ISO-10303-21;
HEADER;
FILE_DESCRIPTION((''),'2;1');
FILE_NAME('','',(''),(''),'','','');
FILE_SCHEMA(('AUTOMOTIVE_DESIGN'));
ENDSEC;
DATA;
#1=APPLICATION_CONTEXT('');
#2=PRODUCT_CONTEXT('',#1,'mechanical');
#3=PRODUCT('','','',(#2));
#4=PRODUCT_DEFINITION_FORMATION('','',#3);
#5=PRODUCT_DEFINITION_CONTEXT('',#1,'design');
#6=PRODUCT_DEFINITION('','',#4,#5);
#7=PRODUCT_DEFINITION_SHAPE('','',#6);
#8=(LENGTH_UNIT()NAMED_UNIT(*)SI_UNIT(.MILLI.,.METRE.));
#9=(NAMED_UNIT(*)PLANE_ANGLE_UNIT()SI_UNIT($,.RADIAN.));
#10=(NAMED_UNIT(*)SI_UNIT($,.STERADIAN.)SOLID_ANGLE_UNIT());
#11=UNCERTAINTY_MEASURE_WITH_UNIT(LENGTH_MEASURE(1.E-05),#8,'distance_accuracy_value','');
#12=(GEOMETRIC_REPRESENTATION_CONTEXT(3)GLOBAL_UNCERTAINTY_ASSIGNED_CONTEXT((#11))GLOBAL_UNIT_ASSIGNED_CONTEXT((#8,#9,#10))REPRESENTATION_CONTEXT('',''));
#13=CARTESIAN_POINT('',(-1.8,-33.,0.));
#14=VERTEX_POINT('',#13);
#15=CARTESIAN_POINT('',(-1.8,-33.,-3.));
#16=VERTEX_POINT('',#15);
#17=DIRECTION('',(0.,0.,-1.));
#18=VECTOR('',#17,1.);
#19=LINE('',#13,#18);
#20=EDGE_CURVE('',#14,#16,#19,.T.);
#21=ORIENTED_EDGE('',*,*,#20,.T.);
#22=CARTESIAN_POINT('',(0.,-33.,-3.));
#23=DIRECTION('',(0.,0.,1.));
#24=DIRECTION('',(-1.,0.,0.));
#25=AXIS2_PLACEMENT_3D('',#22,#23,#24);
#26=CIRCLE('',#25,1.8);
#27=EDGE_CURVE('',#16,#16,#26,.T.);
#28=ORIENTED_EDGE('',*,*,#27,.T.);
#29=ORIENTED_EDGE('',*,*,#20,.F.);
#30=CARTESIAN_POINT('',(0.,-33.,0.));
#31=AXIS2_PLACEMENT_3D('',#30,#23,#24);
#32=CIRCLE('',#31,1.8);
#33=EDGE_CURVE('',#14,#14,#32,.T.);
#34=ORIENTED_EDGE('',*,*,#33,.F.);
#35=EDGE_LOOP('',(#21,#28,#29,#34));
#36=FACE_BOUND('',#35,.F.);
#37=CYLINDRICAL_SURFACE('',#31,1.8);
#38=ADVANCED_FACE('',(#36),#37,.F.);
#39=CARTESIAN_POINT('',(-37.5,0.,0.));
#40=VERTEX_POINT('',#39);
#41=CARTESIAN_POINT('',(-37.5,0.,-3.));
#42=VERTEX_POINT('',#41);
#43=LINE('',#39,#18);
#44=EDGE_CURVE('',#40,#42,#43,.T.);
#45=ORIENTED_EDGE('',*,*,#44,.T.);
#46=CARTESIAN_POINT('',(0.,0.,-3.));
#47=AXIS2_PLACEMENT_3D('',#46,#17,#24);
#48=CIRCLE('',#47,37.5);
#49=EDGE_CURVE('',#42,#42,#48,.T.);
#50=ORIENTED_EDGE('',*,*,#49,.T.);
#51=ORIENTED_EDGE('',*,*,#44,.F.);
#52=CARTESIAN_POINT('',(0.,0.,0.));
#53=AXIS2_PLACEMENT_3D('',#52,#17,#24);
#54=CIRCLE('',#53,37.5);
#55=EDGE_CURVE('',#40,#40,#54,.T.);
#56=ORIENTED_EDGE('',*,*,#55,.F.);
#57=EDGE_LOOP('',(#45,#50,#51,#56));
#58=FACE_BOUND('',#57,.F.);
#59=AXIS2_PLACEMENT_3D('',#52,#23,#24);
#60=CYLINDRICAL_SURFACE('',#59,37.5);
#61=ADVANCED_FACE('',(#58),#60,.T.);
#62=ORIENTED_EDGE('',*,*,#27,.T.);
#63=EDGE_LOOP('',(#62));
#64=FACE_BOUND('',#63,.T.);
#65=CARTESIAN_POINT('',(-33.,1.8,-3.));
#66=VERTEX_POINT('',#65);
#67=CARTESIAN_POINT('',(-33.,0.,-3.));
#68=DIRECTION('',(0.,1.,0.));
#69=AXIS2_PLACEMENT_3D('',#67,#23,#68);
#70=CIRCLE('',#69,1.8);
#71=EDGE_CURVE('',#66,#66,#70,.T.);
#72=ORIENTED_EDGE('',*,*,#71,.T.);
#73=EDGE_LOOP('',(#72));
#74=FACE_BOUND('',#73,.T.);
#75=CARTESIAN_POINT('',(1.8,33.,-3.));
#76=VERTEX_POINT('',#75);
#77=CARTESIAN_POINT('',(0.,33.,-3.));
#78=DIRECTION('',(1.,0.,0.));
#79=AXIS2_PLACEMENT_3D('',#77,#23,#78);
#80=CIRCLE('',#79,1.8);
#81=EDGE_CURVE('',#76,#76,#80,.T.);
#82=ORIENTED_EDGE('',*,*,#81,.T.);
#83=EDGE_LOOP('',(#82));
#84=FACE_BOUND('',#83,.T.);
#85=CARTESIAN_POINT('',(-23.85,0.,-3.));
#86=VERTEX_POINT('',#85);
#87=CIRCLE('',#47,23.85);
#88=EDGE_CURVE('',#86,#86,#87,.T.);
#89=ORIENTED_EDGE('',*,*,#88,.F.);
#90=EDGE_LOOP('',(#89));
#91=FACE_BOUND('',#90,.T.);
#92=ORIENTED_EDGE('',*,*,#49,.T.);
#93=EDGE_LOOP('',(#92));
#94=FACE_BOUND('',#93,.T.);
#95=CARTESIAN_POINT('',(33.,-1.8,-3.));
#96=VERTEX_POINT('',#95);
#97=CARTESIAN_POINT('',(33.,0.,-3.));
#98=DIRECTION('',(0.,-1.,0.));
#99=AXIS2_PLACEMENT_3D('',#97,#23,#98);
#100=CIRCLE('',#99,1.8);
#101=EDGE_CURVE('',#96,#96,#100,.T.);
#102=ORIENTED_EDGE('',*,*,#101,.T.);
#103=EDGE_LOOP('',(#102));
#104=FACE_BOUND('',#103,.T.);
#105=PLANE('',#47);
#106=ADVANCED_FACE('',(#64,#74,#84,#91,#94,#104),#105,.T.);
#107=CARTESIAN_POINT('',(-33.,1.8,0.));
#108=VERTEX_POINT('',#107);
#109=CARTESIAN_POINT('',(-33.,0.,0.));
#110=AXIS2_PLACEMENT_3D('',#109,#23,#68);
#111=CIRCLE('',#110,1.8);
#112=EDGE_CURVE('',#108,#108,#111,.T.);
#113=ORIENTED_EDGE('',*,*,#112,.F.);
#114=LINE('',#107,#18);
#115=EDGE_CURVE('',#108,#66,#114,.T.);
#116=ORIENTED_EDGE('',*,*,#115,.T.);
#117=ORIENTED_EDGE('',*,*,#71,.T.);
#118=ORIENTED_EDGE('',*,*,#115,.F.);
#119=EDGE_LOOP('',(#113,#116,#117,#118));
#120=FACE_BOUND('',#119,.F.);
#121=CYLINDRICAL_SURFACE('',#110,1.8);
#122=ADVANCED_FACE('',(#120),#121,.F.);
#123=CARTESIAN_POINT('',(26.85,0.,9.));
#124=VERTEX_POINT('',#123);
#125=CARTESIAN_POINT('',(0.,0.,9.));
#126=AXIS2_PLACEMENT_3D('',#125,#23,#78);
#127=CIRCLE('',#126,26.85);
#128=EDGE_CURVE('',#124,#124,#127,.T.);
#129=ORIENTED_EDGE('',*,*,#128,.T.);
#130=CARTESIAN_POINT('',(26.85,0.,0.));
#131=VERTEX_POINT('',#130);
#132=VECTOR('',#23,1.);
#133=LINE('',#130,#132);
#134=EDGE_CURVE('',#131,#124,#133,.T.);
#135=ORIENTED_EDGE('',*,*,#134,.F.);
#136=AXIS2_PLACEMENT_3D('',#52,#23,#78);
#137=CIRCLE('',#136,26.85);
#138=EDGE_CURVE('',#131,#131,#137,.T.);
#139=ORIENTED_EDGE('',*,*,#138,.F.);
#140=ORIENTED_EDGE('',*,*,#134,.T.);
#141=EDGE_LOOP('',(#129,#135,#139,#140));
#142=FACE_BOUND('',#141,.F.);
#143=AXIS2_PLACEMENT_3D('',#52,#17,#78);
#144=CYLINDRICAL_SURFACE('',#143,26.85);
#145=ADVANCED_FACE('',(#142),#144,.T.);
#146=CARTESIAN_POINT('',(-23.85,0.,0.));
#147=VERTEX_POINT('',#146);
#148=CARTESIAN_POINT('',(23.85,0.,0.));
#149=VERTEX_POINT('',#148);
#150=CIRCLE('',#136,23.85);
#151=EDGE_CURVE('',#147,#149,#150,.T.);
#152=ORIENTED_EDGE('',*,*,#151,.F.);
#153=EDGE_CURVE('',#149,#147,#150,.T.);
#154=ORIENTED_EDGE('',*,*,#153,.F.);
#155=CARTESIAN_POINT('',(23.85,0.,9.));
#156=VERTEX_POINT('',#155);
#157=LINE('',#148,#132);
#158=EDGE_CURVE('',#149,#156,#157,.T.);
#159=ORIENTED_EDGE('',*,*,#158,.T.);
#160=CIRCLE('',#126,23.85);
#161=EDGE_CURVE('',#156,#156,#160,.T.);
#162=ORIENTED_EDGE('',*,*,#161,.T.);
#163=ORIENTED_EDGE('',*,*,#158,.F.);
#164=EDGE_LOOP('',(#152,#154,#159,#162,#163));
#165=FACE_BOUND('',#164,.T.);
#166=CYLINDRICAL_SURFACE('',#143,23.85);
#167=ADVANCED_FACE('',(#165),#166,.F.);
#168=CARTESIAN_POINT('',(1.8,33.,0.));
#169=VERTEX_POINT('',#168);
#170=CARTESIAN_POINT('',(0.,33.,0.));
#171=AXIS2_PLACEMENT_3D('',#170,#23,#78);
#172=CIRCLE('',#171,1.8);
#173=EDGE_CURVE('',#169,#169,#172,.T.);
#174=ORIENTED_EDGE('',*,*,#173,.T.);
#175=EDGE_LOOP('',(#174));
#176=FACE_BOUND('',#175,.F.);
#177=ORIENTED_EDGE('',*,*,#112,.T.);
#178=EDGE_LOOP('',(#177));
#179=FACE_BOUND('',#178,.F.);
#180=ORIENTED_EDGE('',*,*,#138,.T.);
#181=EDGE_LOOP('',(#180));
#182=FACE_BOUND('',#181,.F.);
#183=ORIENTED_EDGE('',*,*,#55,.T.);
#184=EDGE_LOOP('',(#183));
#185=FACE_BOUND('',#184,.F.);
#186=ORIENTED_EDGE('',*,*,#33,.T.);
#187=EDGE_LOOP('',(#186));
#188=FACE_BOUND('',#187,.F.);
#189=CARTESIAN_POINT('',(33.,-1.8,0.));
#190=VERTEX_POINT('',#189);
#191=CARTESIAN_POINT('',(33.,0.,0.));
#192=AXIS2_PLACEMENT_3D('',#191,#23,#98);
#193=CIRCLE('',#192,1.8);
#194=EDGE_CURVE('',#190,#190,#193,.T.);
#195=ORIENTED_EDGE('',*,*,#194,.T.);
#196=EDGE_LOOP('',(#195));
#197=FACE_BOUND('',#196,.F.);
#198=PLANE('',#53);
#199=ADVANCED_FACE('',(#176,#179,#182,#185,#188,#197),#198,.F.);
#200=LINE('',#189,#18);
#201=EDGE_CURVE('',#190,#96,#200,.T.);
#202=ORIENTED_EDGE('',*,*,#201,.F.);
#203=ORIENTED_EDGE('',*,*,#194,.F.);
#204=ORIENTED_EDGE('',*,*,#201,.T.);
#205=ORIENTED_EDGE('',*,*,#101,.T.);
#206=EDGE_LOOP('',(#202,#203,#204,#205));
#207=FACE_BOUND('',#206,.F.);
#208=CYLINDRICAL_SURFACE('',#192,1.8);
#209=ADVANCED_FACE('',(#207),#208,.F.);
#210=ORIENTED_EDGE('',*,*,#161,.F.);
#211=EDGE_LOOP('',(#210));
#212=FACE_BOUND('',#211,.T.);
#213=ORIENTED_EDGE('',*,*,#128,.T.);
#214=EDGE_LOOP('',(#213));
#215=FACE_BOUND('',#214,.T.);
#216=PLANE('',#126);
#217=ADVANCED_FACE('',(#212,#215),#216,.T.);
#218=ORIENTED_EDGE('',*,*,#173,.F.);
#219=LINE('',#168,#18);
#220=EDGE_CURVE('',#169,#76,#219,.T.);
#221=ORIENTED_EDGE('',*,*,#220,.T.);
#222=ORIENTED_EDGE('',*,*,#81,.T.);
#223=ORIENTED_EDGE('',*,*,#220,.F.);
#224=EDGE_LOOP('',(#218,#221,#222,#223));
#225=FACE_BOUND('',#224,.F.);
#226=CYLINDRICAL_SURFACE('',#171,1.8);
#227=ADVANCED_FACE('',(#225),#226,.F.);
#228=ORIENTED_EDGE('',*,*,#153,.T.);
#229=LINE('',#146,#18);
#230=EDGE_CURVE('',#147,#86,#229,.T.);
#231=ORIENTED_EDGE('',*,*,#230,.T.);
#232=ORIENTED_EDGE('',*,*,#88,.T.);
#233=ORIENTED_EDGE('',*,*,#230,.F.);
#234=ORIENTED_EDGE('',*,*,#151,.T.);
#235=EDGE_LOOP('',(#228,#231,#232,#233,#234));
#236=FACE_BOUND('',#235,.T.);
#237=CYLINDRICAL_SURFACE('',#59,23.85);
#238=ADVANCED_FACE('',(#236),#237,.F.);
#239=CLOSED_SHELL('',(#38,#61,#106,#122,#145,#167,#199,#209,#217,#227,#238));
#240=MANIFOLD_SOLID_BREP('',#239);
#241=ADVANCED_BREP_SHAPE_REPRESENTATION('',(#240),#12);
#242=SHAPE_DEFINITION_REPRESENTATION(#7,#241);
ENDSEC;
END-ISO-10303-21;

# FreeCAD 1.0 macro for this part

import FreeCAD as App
import Part
import Sketcher
Q = App.Units.Quantity

doc = App.newDocument("Part")
params = doc.addObject("Spreadsheet::Sheet", "Params")
for row, (alias, value) in enumerate([
    ("sketch1_diameter", "47.7 mm"),
    ("sketch1_diameter2", "53.7 mm"),
    ("pad1_length", "9 mm"),
    ("sketch2_diameter", "75 mm"),
    ("sketch2_diameter2", "47.7 mm"),
    ("pad2_length", "3 mm"),
    ("sketch3_diameter", "3.6 mm"),
    ("pocket1_length", "10 mm"),
], start=1):
    params.set(f"A{row}", alias)
    params.set(f"B{row}", "=" + value)
    params.setAlias(f"B{row}", alias)

body = doc.addObject("PartDesign::Body", "Body")

sketch1 = body.newObject("Sketcher::SketchObject", "Sketch")
sketch1.AttachmentSupport = (doc.getObject("XY_Plane"), [""])
sketch1.MapMode = "FlatFace"
sketch1.addGeometry(Part.Circle(App.Vector(0, 0, 0), App.Vector(0, 0, 1), 26.85), False)
sketch1.addGeometry(Part.Circle(App.Vector(0, 0, 0), App.Vector(0, 0, 1), 23.85), False)
sketch1.addConstraint(Sketcher.Constraint("Coincident", 0, 3, -1, 1))
sketch1.addConstraint(Sketcher.Constraint("Coincident", 1, 3, -1, 1))
sketch1.addConstraint(Sketcher.Constraint("Diameter", 1, Q("47.7 mm")))
sketch1.addConstraint(Sketcher.Constraint("Diameter", 0, Q("53.7 mm")))
sketch1.setExpression("Constraints[2]", "Params.sketch1_diameter")
sketch1.setExpression("Constraints[3]", "Params.sketch1_diameter2")
pad1 = body.newObject("PartDesign::Pad", "Pad")
pad1.Profile = sketch1
pad1.setExpression("Length", "Params.pad1_length")

sketch2 = body.newObject("Sketcher::SketchObject", "Sketch001")
sketch2.AttachmentSupport = (doc.getObject("XY_Plane"), [""])
sketch2.MapMode = "FlatFace"
sketch2.addGeometry(Part.Circle(App.Vector(0, 0, 0), App.Vector(0, 0, 1), 37.5), False)
sketch2.addGeometry(Part.Circle(App.Vector(0, 0, 0), App.Vector(0, 0, 1), 23.85), False)
sketch2.addConstraint(Sketcher.Constraint("Coincident", 0, 3, -1, 1))
sketch2.addConstraint(Sketcher.Constraint("Coincident", 1, 3, -1, 1))
sketch2.addConstraint(Sketcher.Constraint("Diameter", 0, Q("75 mm")))
sketch2.addConstraint(Sketcher.Constraint("Diameter", 1, Q("47.7 mm")))
sketch2.setExpression("Constraints[2]", "Params.sketch2_diameter")
sketch2.setExpression("Constraints[3]", "Params.sketch2_diameter2")
pad2 = body.newObject("PartDesign::Pad", "Pad001")
pad2.Profile = sketch2
pad2.setExpression("Length", "Params.pad2_length")
pad2.Reversed = True

sketch3 = body.newObject("Sketcher::SketchObject", "Sketch002")
sketch3.AttachmentSupport = (doc.getObject("XY_Plane"), [""])
sketch3.MapMode = "FlatFace"
sketch3.addGeometry(Part.Circle(App.Vector(0, 33, 0), App.Vector(0, 0, 1), 1.8), False)
sketch3.addConstraint(Sketcher.Constraint("PointOnObject", 0, 3, -2))
sketch3.addConstraint(Sketcher.Constraint("Diameter", 0, Q("3.6 mm")))
sketch3.addConstraint(Sketcher.Constraint("DistanceY", -1, 1, 0, 3, Q("33 mm")))
sketch3.setExpression("Constraints[1]", "Params.sketch3_diameter")
pocket1 = body.newObject("PartDesign::Pocket", "Pocket")
pocket1.Profile = sketch3
pocket1.setExpression("Length", "Params.pocket1_length")
doc.recompute()

polarpattern = body.newObject("PartDesign::PolarPattern", "PolarPattern")
polarpattern.Originals = [pocket1]
polarpattern.Axis = (doc.getObject("Z_Axis"), [""])
polarpattern.Angle = 360
polarpattern.Occurrences = 4
body.Tip = polarpattern

doc.recompute()
